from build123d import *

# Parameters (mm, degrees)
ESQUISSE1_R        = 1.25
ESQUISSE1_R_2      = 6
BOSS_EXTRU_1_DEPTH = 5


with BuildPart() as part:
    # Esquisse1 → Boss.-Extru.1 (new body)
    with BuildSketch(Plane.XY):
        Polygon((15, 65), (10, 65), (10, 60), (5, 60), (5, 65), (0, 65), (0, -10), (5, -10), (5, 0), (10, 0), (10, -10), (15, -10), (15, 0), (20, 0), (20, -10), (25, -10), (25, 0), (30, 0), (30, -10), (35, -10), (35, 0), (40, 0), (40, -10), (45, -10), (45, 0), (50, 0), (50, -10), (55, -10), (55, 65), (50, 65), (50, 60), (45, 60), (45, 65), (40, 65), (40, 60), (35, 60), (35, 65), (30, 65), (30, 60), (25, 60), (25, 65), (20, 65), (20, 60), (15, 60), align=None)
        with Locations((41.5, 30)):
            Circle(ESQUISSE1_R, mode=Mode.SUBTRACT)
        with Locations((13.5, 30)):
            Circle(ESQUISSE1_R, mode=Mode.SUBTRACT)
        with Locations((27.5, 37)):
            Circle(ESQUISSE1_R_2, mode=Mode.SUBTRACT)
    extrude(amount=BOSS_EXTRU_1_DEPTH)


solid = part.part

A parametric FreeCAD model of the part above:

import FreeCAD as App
import Part
import Sketcher

V = App.Vector

doc = App.newDocument("Part")
params = doc.addObject("Spreadsheet::Sheet", "Params")
for row, (alias, value) in enumerate([
    ("sketch1_diameter", "12 mm"),
    ("sketch1_diameter2", "2.5 mm"),
    ("sketch1_width", "5 mm"),
    ("sketch1_height", "75 mm"),
    ("sketch1_height2", "10 mm"),
    ("pad1_length", "5 mm"),
], start=1):
    params.set(f"A{row}", alias)
    params.set(f"B{row}", "=" + value)
    params.setAlias(f"B{row}", alias)

body = doc.addObject("PartDesign::Body", "Body")

# Sketch on XY plane
sketch1 = body.newObject("Sketcher::SketchObject", "Sketch")
sketch1.AttachmentSupport = (doc.getObject("XY_Plane"), [""])
sketch1.MapMode = "FlatFace"
sketch1.addGeometry([
    Part.LineSegment(V(15, 65, 0), V(10, 65, 0)),  # 0
    Part.LineSegment(V(10, 65, 0), V(10, 60, 0)),  # 1
    Part.LineSegment(V(10, 60, 0), V(5, 60, 0)),  # 2
    Part.LineSegment(V(5, 60, 0), V(5, 65, 0)),  # 3
    Part.LineSegment(V(5, 65, 0), V(0, 65, 0)),  # 4
    Part.LineSegment(V(0, 65, 0), V(0, -10, 0)),  # 5
    Part.LineSegment(V(0, -10, 0), V(5, -10, 0)),  # 6
    Part.LineSegment(V(5, -10, 0), V(5, 0, 0)),  # 7
    Part.LineSegment(V(5, 0, 0), V(10, 0, 0)),  # 8
    Part.LineSegment(V(10, 0, 0), V(10, -10, 0)),  # 9
    Part.LineSegment(V(10, -10, 0), V(15, -10, 0)),  # 10
    Part.LineSegment(V(15, -10, 0), V(15, 0, 0)),  # 11
    Part.LineSegment(V(15, 0, 0), V(20, 0, 0)),  # 12
    Part.LineSegment(V(20, 0, 0), V(20, -10, 0)),  # 13
    Part.LineSegment(V(20, -10, 0), V(25, -10, 0)),  # 14
    Part.LineSegment(V(25, -10, 0), V(25, 0, 0)),  # 15
    Part.LineSegment(V(25, 0, 0), V(30, 0, 0)),  # 16
    Part.LineSegment(V(30, 0, 0), V(30, -10, 0)),  # 17
    Part.LineSegment(V(30, -10, 0), V(35, -10, 0)),  # 18
    Part.LineSegment(V(35, -10, 0), V(35, 0, 0)),  # 19
    Part.LineSegment(V(35, 0, 0), V(40, 0, 0)),  # 20
    Part.LineSegment(V(40, 0, 0), V(40, -10, 0)),  # 21
    Part.LineSegment(V(40, -10, 0), V(45, -10, 0)),  # 22
    Part.LineSegment(V(45, -10, 0), V(45, 0, 0)),  # 23
    Part.LineSegment(V(45, 0, 0), V(50, 0, 0)),  # 24
    Part.LineSegment(V(50, 0, 0), V(50, -10, 0)),  # 25
    Part.LineSegment(V(50, -10, 0), V(55, -10, 0)),  # 26
    Part.LineSegment(V(55, -10, 0), V(55, 65, 0)),  # 27
    Part.LineSegment(V(55, 65, 0), V(50, 65, 0)),  # 28
    Part.LineSegment(V(50, 65, 0), V(50, 60, 0)),  # 29
    Part.LineSegment(V(50, 60, 0), V(45, 60, 0)),  # 30
    Part.LineSegment(V(45, 60, 0), V(45, 65, 0)),  # 31
    Part.LineSegment(V(45, 65, 0), V(40, 65, 0)),  # 32
    Part.LineSegment(V(40, 65, 0), V(40, 60, 0)),  # 33
    Part.LineSegment(V(40, 60, 0), V(35, 60, 0)),  # 34
    Part.LineSegment(V(35, 60, 0), V(35, 65, 0)),  # 35
    Part.LineSegment(V(35, 65, 0), V(30, 65, 0)),  # 36
    Part.LineSegment(V(30, 65, 0), V(30, 60, 0)),  # 37
    Part.LineSegment(V(30, 60, 0), V(25, 60, 0)),  # 38
    Part.LineSegment(V(25, 60, 0), V(25, 65, 0)),  # 39
    Part.LineSegment(V(25, 65, 0), V(20, 65, 0)),  # 40
    Part.LineSegment(V(20, 65, 0), V(20, 60, 0)),  # 41
    Part.LineSegment(V(20, 60, 0), V(15, 60, 0)),  # 42
    Part.LineSegment(V(15, 60, 0), V(15, 65, 0)),  # 43
    Part.Circle(V(13.5, 30, 0), V(0, 0, 1), 1.25),  # 44
    Part.Circle(V(41.5, 30, 0), V(0, 0, 1), 1.25),  # 45
    Part.Circle(V(27.5, 37, 0), V(0, 0, 1), 6),  # 46
], False)
sketch1.addConstraint([
    Sketcher.Constraint("Coincident", 0, 2, 1, 1),
    Sketcher.Constraint("Coincident", 1, 2, 2, 1),
    Sketcher.Constraint("Coincident", 2, 2, 3, 1),
    Sketcher.Constraint("Coincident", 3, 2, 4, 1),
    Sketcher.Constraint("Coincident", 4, 2, 5, 1),
    Sketcher.Constraint("Coincident", 5, 2, 6, 1),
    Sketcher.Constraint("Coincident", 6, 2, 7, 1),
    Sketcher.Constraint("Coincident", 7, 2, 8, 1),
    Sketcher.Constraint("Coincident", 8, 2, 9, 1),
    Sketcher.Constraint("Coincident", 9, 2, 10, 1),
    Sketcher.Constraint("Coincident", 10, 2, 11, 1),
    Sketcher.Constraint("Coincident", 11, 2, 12, 1),
    Sketcher.Constraint("Coincident", 12, 2, 13, 1),
    Sketcher.Constraint("Coincident", 13, 2, 14, 1),
    Sketcher.Constraint("Coincident", 14, 2, 15, 1),
    Sketcher.Constraint("Coincident", 15, 2, 16, 1),
    Sketcher.Constraint("Coincident", 16, 2, 17, 1),
    Sketcher.Constraint("Coincident", 17, 2, 18, 1),
    Sketcher.Constraint("Coincident", 18, 2, 19, 1),
    Sketcher.Constraint("Coincident", 19, 2, 20, 1),
    Sketcher.Constraint("Coincident", 20, 2, 21, 1),
    Sketcher.Constraint("Coincident", 21, 2, 22, 1),
    Sketcher.Constraint("Coincident", 22, 2, 23, 1),
    Sketcher.Constraint("Coincident", 23, 2, 24, 1),
    Sketcher.Constraint("Coincident", 24, 2, 25, 1),
    Sketcher.Constraint("Coincident", 25, 2, 26, 1),
    Sketcher.Constraint("Coincident", 26, 2, 27, 1),
    Sketcher.Constraint("Coincident", 27, 2, 28, 1),
    Sketcher.Constraint("Coincident", 28, 2, 29, 1),
    Sketcher.Constraint("Coincident", 29, 2, 30, 1),
    Sketcher.Constraint("Coincident", 30, 2, 31, 1),
    Sketcher.Constraint("Coincident", 31, 2, 32, 1),
    Sketcher.Constraint("Coincident", 32, 2, 33, 1),
    Sketcher.Constraint("Coincident", 33, 2, 34, 1),
    Sketcher.Constraint("Coincident", 34, 2, 35, 1),
    Sketcher.Constraint("Coincident", 35, 2, 36, 1),
    Sketcher.Constraint("Coincident", 36, 2, 37, 1),
    Sketcher.Constraint("Coincident", 37, 2, 38, 1),
    Sketcher.Constraint("Coincident", 38, 2, 39, 1),
    Sketcher.Constraint("Coincident", 39, 2, 40, 1),
    Sketcher.Constraint("Coincident", 40, 2, 41, 1),
    Sketcher.Constraint("Coincident", 41, 2, 42, 1),
    Sketcher.Constraint("Coincident", 42, 2, 43, 1),
    Sketcher.Constraint("Coincident", 43, 2, 0, 1),
    Sketcher.Constraint("Horizontal", 0),
    Sketcher.Constraint("Vertical", 1),
    Sketcher.Constraint("Horizontal", 2),
    Sketcher.Constraint("Vertical", 3),
    Sketcher.Constraint("Horizontal", 4),
    Sketcher.Constraint("Vertical", 5),
    Sketcher.Constraint("Horizontal", 6),
    Sketcher.Constraint("Vertical", 7),
    Sketcher.Constraint("Horizontal", 8),
    Sketcher.Constraint("Vertical", 9),
    Sketcher.Constraint("Horizontal", 10),
    Sketcher.Constraint("Vertical", 11),
    Sketcher.Constraint("Horizontal", 12),
    Sketcher.Constraint("Vertical", 13),
    Sketcher.Constraint("Horizontal", 14),
    Sketcher.Constraint("Vertical", 15),
    Sketcher.Constraint("Horizontal", 16),
    Sketcher.Constraint("Vertical", 17),
    Sketcher.Constraint("Horizontal", 18),
    Sketcher.Constraint("Vertical", 19),
    Sketcher.Constraint("Horizontal", 20),
    Sketcher.Constraint("Vertical", 21),
    Sketcher.Constraint("Horizontal", 22),
    Sketcher.Constraint("Vertical", 23),
    Sketcher.Constraint("Horizontal", 24),
    Sketcher.Constraint("Vertical", 25),
    Sketcher.Constraint("Horizontal", 26),
    Sketcher.Constraint("Vertical", 27),
    Sketcher.Constraint("Horizontal", 28),
    Sketcher.Constraint("Vertical", 29),
    Sketcher.Constraint("Horizontal", 30),
    Sketcher.Constraint("Vertical", 31),
    Sketcher.Constraint("Horizontal", 32),
    Sketcher.Constraint("Vertical", 33),
    Sketcher.Constraint("Horizontal", 34),
    Sketcher.Constraint("Vertical", 35),
    Sketcher.Constraint("Horizontal", 36),
    Sketcher.Constraint("Vertical", 37),
    Sketcher.Constraint("Horizontal", 38),
    Sketcher.Constraint("Vertical", 39),
    Sketcher.Constraint("Horizontal", 40),
    Sketcher.Constraint("Vertical", 41),
    Sketcher.Constraint("Horizontal", 42),
    Sketcher.Constraint("Vertical", 43),
    Sketcher.Constraint("Equal", 44, 45),
    Sketcher.Constraint("PointOnObject", 4, 2, -2),
    Sketcher.Constraint("PointOnObject", 7, 2, -1),
    Sketcher.Constraint("PointOnObject", 11, 2, -1),
    Sketcher.Constraint("PointOnObject", 15, 2, -1),
    Sketcher.Constraint("PointOnObject", 19, 2, -1),
    Sketcher.Constraint("PointOnObject", 23, 2, -1),
    Sketcher.Constraint("Horizontal", 44, 3, 45, 3),
    Sketcher.Constraint("Horizontal", 0, 2, 3, 2),
    Sketcher.Constraint("Horizontal", 6, 2, 9, 2),
    Sketcher.Constraint("Horizontal", 10, 2, 13, 2),
    Sketcher.Constraint("Horizontal", 14, 2, 17, 2),
    Sketcher.Constraint("Horizontal", 18, 2, 21, 2),
    Sketcher.Constraint("Horizontal", 22, 2, 25, 2),
    Sketcher.Constraint("Horizontal", 4, 2, 27, 2),
    Sketcher.Constraint("Horizontal", 2, 2, 29, 2),
    Sketcher.Constraint("Horizontal", 28, 2, 31, 2),
    Sketcher.Constraint("Horizontal", 30, 2, 33, 2),
    Sketcher.Constraint("Horizontal", 32, 2, 35, 2),
    Sketcher.Constraint("Horizontal", 34, 2, 37, 2),
    Sketcher.Constraint("Horizontal", 36, 2, 39, 2),
    Sketcher.Constraint("Horizontal", 38, 2, 41, 2),
    Sketcher.Constraint("Vertical", 3, 2, 6, 2),
    Sketcher.Constraint("Vertical", 1, 2, 8, 2),
    Sketcher.Constraint("Vertical", 25, 2, 28, 2),
    Sketcher.Constraint("Vertical", 23, 2, 30, 2),
    Sketcher.Constraint("Vertical", 21, 2, 32, 2),
    Sketcher.Constraint("Vertical", 19, 2, 34, 2),
    Sketcher.Constraint("Vertical", 17, 2, 36, 2),
    Sketcher.Constraint("Vertical", 15, 2, 38, 2),
    Sketcher.Constraint("Vertical", 13, 2, 40, 2),
    Sketcher.Constraint("Vertical", 11, 2, 42, 2),
    Sketcher.Constraint("Equal", 0, 2),
    Sketcher.Constraint("Equal", 2, 4),
    Sketcher.Constraint("Equal", 10, 12),
    Sketcher.Constraint("Equal", 12, 14),
    Sketcher.Constraint("Equal", 14, 16),
    Sketcher.Constraint("Equal", 16, 18),
    Sketcher.Constraint("Equal", 18, 20),
    Sketcher.Constraint("Equal", 20, 22),
    Sketcher.Constraint("Equal", 22, 24),
    Sketcher.Constraint("Equal", 24, 26),
    Sketcher.Constraint("Equal", 42, 1),
    Sketcher.Constraint("Diameter", 46, 12.0),
    Sketcher.Constraint("Diameter", 44, 2.5),
    Sketcher.Constraint("DistanceX", 0, 2, 0, 1, 5.0),
    Sketcher.Constraint("DistanceY", 5, 2, 5, 1, 75.0),
    Sketcher.Constraint("DistanceY", 7, 1, 7, 2, 10.0),
    Sketcher.Constraint("DistanceY", -1, 1, 44, 3, 30.0),
    Sketcher.Constraint("DistanceY", -1, 1, 46, 3, 37.0),
    Sketcher.Constraint("DistanceX", 44, 3, 45, 3, 28.0),
    Sketcher.Constraint("DistanceX", 44, 3, 46, 3, 14.0),
    Sketcher.Constraint("DistanceX", -1, 1, 44, 3, 13.5),
])
sketch1.setExpression("Constraints[131]", "Params.sketch1_diameter")
sketch1.setExpression("Constraints[132]", "Params.sketch1_diameter2")
sketch1.setExpression("Constraints[133]", "Params.sketch1_width")
sketch1.setExpression("Constraints[134]", "Params.sketch1_height")
sketch1.setExpression("Constraints[135]", "Params.sketch1_height2")
pad1 = body.newObject("PartDesign::Pad", "Pad")
pad1.Profile = sketch1
pad1.setExpression("Length", "Params.pad1_length")

doc.recompute()
